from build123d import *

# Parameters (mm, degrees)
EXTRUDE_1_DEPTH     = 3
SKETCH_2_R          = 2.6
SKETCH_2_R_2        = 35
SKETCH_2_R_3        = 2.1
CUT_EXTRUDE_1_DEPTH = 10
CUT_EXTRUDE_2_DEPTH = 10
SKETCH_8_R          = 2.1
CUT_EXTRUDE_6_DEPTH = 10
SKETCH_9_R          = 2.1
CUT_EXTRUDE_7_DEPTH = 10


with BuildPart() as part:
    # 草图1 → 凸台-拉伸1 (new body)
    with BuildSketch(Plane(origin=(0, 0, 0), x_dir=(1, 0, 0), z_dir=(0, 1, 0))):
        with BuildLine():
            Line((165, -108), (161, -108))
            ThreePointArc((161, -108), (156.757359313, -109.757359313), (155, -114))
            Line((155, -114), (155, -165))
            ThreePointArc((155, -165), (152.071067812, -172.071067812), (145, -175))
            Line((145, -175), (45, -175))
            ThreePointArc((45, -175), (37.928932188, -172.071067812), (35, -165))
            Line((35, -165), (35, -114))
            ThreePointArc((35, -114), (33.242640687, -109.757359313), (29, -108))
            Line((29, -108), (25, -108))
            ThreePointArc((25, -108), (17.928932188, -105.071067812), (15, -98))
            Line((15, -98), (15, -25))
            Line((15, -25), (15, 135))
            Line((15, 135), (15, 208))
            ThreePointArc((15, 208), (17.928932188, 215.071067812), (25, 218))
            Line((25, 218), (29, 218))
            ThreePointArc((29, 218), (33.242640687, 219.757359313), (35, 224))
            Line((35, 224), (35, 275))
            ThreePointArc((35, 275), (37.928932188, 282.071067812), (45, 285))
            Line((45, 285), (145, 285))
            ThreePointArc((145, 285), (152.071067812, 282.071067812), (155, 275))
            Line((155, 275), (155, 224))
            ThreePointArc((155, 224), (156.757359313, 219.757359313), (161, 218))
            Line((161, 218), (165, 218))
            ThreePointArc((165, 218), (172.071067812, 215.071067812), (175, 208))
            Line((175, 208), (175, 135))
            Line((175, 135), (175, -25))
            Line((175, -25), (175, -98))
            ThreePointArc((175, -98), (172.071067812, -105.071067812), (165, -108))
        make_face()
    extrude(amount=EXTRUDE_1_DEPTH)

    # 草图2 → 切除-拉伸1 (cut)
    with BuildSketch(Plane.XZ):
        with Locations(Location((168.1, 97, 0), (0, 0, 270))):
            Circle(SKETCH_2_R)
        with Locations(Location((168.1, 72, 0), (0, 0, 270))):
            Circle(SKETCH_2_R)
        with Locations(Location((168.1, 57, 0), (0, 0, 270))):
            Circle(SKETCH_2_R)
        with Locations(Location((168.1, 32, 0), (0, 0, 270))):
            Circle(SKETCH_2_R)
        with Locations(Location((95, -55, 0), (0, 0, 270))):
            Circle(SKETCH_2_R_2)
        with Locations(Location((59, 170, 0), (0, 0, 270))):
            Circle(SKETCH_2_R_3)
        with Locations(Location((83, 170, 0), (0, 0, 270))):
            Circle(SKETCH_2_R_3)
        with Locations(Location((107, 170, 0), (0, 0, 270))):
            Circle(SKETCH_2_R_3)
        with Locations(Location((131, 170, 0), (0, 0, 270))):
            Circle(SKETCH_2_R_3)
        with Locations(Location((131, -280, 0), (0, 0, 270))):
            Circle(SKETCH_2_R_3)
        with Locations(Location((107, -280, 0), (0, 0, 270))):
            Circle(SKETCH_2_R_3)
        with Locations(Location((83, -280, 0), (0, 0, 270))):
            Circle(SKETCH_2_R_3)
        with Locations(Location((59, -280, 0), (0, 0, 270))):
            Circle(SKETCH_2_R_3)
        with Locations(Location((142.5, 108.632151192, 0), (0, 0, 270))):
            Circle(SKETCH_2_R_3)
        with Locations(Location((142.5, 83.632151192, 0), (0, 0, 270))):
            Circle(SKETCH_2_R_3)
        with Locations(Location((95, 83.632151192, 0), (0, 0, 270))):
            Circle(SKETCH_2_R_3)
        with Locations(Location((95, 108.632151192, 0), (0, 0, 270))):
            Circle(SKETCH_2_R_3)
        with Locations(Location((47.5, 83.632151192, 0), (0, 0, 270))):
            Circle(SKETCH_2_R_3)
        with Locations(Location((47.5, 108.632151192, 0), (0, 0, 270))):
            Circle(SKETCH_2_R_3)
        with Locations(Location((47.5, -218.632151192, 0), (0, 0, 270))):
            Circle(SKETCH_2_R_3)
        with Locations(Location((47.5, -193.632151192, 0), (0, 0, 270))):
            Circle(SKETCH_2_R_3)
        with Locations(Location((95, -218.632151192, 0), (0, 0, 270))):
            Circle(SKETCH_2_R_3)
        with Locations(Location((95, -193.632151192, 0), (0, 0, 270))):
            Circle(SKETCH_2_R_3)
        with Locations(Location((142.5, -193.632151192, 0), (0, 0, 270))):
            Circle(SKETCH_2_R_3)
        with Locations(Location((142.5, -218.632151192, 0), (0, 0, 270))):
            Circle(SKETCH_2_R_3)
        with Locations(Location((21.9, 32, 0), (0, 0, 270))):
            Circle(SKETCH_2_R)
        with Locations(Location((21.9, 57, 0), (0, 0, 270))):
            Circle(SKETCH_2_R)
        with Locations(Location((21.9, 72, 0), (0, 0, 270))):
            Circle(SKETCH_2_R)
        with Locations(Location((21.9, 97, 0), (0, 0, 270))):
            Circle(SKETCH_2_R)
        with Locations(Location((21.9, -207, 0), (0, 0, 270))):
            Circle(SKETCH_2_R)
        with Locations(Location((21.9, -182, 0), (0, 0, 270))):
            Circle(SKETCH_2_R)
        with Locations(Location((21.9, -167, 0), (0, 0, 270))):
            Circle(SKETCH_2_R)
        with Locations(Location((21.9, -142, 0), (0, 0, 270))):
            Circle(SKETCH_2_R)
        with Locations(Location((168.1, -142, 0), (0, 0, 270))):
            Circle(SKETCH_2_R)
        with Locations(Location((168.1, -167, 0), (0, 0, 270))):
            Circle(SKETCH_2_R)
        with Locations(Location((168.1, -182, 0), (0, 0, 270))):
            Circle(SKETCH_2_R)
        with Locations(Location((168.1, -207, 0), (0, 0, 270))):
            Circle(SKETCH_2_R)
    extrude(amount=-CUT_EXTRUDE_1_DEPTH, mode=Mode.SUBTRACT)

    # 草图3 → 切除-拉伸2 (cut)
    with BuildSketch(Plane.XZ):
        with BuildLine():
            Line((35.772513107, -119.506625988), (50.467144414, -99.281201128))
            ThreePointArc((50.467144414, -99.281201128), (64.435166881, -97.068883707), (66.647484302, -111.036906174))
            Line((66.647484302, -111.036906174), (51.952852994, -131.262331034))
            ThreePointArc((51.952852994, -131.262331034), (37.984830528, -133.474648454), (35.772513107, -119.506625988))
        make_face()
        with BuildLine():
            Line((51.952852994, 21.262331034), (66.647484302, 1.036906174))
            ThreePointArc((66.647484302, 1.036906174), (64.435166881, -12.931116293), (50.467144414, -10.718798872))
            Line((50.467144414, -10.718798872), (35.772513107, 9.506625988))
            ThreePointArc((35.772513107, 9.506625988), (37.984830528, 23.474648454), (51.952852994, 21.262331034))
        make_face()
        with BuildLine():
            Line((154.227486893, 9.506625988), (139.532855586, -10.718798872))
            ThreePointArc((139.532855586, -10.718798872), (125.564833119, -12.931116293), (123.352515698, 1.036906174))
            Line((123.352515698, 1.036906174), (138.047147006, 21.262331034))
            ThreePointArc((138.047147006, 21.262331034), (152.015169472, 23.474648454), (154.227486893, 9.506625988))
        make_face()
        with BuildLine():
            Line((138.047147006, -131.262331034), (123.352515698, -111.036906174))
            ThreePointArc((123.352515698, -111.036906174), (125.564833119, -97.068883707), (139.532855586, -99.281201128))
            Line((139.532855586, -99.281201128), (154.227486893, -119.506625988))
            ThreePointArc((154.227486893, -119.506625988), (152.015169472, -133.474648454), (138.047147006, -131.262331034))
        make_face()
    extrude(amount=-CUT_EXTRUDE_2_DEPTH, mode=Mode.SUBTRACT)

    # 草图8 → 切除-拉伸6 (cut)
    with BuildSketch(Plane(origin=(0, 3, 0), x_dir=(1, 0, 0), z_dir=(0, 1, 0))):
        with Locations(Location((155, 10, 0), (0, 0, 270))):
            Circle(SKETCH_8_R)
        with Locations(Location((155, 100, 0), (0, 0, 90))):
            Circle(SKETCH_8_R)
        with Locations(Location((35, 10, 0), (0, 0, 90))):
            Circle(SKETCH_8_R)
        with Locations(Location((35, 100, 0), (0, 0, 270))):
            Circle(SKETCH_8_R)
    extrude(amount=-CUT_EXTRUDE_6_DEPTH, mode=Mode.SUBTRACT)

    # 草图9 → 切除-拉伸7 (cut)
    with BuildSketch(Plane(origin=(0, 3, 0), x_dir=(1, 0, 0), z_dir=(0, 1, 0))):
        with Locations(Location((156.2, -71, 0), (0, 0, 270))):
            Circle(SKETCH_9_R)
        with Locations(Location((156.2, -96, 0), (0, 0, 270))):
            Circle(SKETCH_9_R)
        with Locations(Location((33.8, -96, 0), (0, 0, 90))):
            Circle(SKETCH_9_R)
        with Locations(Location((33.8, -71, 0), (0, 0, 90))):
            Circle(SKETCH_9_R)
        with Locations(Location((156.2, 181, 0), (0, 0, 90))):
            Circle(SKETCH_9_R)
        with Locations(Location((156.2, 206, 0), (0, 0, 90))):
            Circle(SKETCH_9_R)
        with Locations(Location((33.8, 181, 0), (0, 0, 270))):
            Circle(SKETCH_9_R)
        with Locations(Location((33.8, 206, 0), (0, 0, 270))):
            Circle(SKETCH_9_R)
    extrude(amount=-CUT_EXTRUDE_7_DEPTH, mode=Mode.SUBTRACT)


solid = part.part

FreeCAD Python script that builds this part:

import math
import FreeCAD as App
import Part
import Sketcher

V = App.Vector
Q = App.Units.Quantity

doc = App.newDocument("Part")
params = doc.addObject("Spreadsheet::Sheet", "Params")
for row, (alias, value) in enumerate([
    ("sketch1_radius", "10 mm"),
    ("sketch1_radius2", "6 mm"),
    ("sketch1_width", "4 mm"),
    ("sketch1_width2", "100 mm"),
    ("sketch1_height", "306 mm"),
    ("pad1_length", "3 mm"),
    ("sketch2_diameter", "70 mm"),
    ("sketch2_diameter2", "5.2 mm"),
    ("sketch2_diameter3", "4.2 mm"),
    ("pocket1_length", "10 mm"),
    ("sketch3_radius", "10 mm"),
    ("sketch3_length", "25 mm"),
    ("pocket2_length", "10 mm"),
    ("sketch4_diameter", "4.2 mm"),
    ("pocket3_length", "10 mm"),
    ("sketch5_diameter", "4.2 mm"),
    ("pocket4_length", "10 mm"),
], start=1):
    params.set(f"A{row}", alias)
    params.set(f"B{row}", "=" + value)
    params.setAlias(f"B{row}", alias)

body = doc.addObject("PartDesign::Body", "Body")

sketch1 = body.newObject("Sketcher::SketchObject", "Sketch")
sketch1.AttachmentSupport = (doc.getObject("XZ_Plane"), [""])
sketch1.MapMode = "FlatFace"
sketch1.addGeometry([
    Part.LineSegment(V(161, 108, 0), V(165, 108, 0)),
    Part.ArcOfCircle(Part.Circle(V(165, 98, 0), V(0, 0, 1), 10), math.radians(0), math.radians(90)),
    Part.LineSegment(V(175, 98, 0), V(175, -208, 0)),
    Part.ArcOfCircle(Part.Circle(V(165, -208, 0), V(0, 0, 1), 10), math.radians(-90), math.radians(0)),
    Part.LineSegment(V(165, -218, 0), V(161, -218, 0)),
    Part.ArcOfCircle(Part.Circle(V(161, -224, 0), V(0, 0, 1), 6), math.radians(90), math.radians(180)),
    Part.LineSegment(V(155, -224, 0), V(155, -275, 0)),
    Part.ArcOfCircle(Part.Circle(V(145, -275, 0), V(0, 0, 1), 10), math.radians(-90), math.radians(0)),
    Part.LineSegment(V(145, -285, 0), V(45, -285, 0)),
    Part.ArcOfCircle(Part.Circle(V(45, -275, 0), V(0, 0, 1), 10), math.radians(180), math.radians(270)),
    Part.LineSegment(V(35, -275, 0), V(35, -224, 0)),
    Part.ArcOfCircle(Part.Circle(V(29, -224, 0), V(0, 0, 1), 6), math.radians(0), math.radians(90)),
    Part.LineSegment(V(29, -218, 0), V(25, -218, 0)),
    Part.ArcOfCircle(Part.Circle(V(25, -208, 0), V(0, 0, 1), 10), math.radians(180), math.radians(270)),
    Part.LineSegment(V(15, -208, 0), V(15, 98, 0)),
    Part.ArcOfCircle(Part.Circle(V(25, 98, 0), V(0, 0, 1), 10), math.radians(90), math.radians(180)),
    Part.LineSegment(V(25, 108, 0), V(29, 108, 0)),
    Part.ArcOfCircle(Part.Circle(V(29, 114, 0), V(0, 0, 1), 6), math.radians(-90), math.radians(0)),
    Part.LineSegment(V(35, 114, 0), V(35, 165, 0)),
    Part.ArcOfCircle(Part.Circle(V(45, 165, 0), V(0, 0, 1), 10), math.radians(90), math.radians(180)),
    Part.LineSegment(V(45, 175, 0), V(145, 175, 0)),
    Part.ArcOfCircle(Part.Circle(V(145, 165, 0), V(0, 0, 1), 10), math.radians(0), math.radians(90)),
    Part.LineSegment(V(155, 165, 0), V(155, 114, 0)),
    Part.ArcOfCircle(Part.Circle(V(161, 114, 0), V(0, 0, 1), 6), math.radians(180), math.radians(270)),
], False)
sketch1.addConstraint([
    Sketcher.Constraint("Tangent", 0, 2, 1, 2),
    Sketcher.Constraint("Tangent", 1, 1, 2, 1),
    Sketcher.Constraint("Tangent", 2, 2, 3, 2),
    Sketcher.Constraint("Tangent", 3, 1, 4, 1),
    Sketcher.Constraint("Tangent", 4, 2, 5, 1),
    Sketcher.Constraint("Tangent", 5, 2, 6, 1),
    Sketcher.Constraint("Tangent", 6, 2, 7, 2),
    Sketcher.Constraint("Tangent", 7, 1, 8, 1),
    Sketcher.Constraint("Tangent", 8, 2, 9, 2),
    Sketcher.Constraint("Tangent", 9, 1, 10, 1),
    Sketcher.Constraint("Tangent", 10, 2, 11, 1),
    Sketcher.Constraint("Tangent", 11, 2, 12, 1),
    Sketcher.Constraint("Tangent", 12, 2, 13, 2),
    Sketcher.Constraint("Tangent", 13, 1, 14, 1),
    Sketcher.Constraint("Tangent", 14, 2, 15, 2),
    Sketcher.Constraint("Tangent", 15, 1, 16, 1),
    Sketcher.Constraint("Tangent", 16, 2, 17, 1),
    Sketcher.Constraint("Tangent", 17, 2, 18, 1),
    Sketcher.Constraint("Tangent", 18, 2, 19, 2),
    Sketcher.Constraint("Tangent", 19, 1, 20, 1),
    Sketcher.Constraint("Tangent", 20, 2, 21, 2),
    Sketcher.Constraint("Tangent", 21, 1, 22, 1),
    Sketcher.Constraint("Tangent", 22, 2, 23, 1),
    Sketcher.Constraint("Tangent", 23, 2, 0, 1),
    Sketcher.Constraint("Horizontal", 0),
    Sketcher.Constraint("Vertical", 2),
    Sketcher.Constraint("Horizontal", 4),
    Sketcher.Constraint("Vertical", 6),
    Sketcher.Constraint("Horizontal", 8),
    Sketcher.Constraint("Vertical", 10),
    Sketcher.Constraint("Horizontal", 12),
    Sketcher.Constraint("Vertical", 14),
    Sketcher.Constraint("Horizontal", 16),
    Sketcher.Constraint("Vertical", 18),
    Sketcher.Constraint("Horizontal", 20),
    Sketcher.Constraint("Vertical", 22),
    Sketcher.Constraint("Equal", 1, 3),
    Sketcher.Constraint("Equal", 3, 7),
    Sketcher.Constraint("Equal", 7, 9),
    Sketcher.Constraint("Equal", 5, 11),
    Sketcher.Constraint("Equal", 9, 13),
    Sketcher.Constraint("Equal", 13, 15),
    Sketcher.Constraint("Equal", 11, 17),
    Sketcher.Constraint("Equal", 15, 19),
    Sketcher.Constraint("Equal", 19, 21),
    Sketcher.Constraint("Equal", 17, 23),
    Sketcher.Constraint("Horizontal", 5, 3, 11, 3),
    Sketcher.Constraint("Horizontal", 1, 3, 15, 3),
    Sketcher.Constraint("Vertical", 11, 3, 17, 3),
    Sketcher.Constraint("Vertical", 7, 3, 21, 3),
    Sketcher.Constraint("Equal", 4, 12),
    Sketcher.Constraint("Equal", 10, 18),
    Sketcher.Constraint("Radius", 1, Q("10 mm")),
    Sketcher.Constraint("Radius", 5, Q("6 mm")),
    Sketcher.Constraint("DistanceX", 0, 1, 0, 2, Q("4 mm")),
    Sketcher.Constraint("DistanceX", 8, 2, 8, 1, Q("100 mm")),
    Sketcher.Constraint("DistanceY", 2, 2, 2, 1, Q("306 mm")),
    Sketcher.Constraint("DistanceY", 6, 2, 6, 1, Q("51 mm")),
    Sketcher.Constraint("DistanceX", -1, 1, 1, 3, Q("165 mm")),
    Sketcher.Constraint("DistanceY", -1, 1, 1, 3, Q("98 mm")),
])
sketch1.setExpression("Constraints[52]", "Params.sketch1_radius")
sketch1.setExpression("Constraints[53]", "Params.sketch1_radius2")
sketch1.setExpression("Constraints[54]", "Params.sketch1_width")
sketch1.setExpression("Constraints[55]", "Params.sketch1_width2")
sketch1.setExpression("Constraints[56]", "Params.sketch1_height")
pad1 = body.newObject("PartDesign::Pad", "Pad")
pad1.Profile = sketch1
pad1.setExpression("Length", "Params.pad1_length")
pad1.Reversed = True

sketch2 = body.newObject("Sketcher::SketchObject", "Sketch001")
sketch2.AttachmentSupport = (doc.getObject("XZ_Plane"), [""])
sketch2.MapMode = "FlatFace"
sketch2.addGeometry([
    Part.Circle(V(168.1, 97, 0), V(0, 0, 1), 2.6),
    Part.Circle(V(168.1, 72, 0), V(0, 0, 1), 2.6),
    Part.Circle(V(168.1, 57, 0), V(0, 0, 1), 2.6),
    Part.Circle(V(168.1, 32, 0), V(0, 0, 1), 2.6),
    Part.Circle(V(95, -55, 0), V(0, 0, 1), 35),
    Part.Circle(V(59, 170, 0), V(0, 0, 1), 2.1),
    Part.Circle(V(83, 170, 0), V(0, 0, 1), 2.1),
    Part.Circle(V(107, 170, 0), V(0, 0, 1), 2.1),
    Part.Circle(V(131, 170, 0), V(0, 0, 1), 2.1),
    Part.Circle(V(131, -280, 0), V(0, 0, 1), 2.1),
    Part.Circle(V(107, -280, 0), V(0, 0, 1), 2.1),
    Part.Circle(V(83, -280, 0), V(0, 0, 1), 2.1),
    Part.Circle(V(59, -280, 0), V(0, 0, 1), 2.1),
    Part.Circle(V(142.5, 108.632151, 0), V(0, 0, 1), 2.1),
    Part.Circle(V(142.5, 83.632151, 0), V(0, 0, 1), 2.1),
    Part.Circle(V(95, 83.632151, 0), V(0, 0, 1), 2.1),
    Part.Circle(V(95, 108.632151, 0), V(0, 0, 1), 2.1),
    Part.Circle(V(47.5, 83.632151, 0), V(0, 0, 1), 2.1),
    Part.Circle(V(47.5, 108.632151, 0), V(0, 0, 1), 2.1),
    Part.Circle(V(47.5, -218.632151, 0), V(0, 0, 1), 2.1),
    Part.Circle(V(47.5, -193.632151, 0), V(0, 0, 1), 2.1),
    Part.Circle(V(95, -218.632151, 0), V(0, 0, 1), 2.1),
    Part.Circle(V(95, -193.632151, 0), V(0, 0, 1), 2.1),
    Part.Circle(V(142.5, -193.632151, 0), V(0, 0, 1), 2.1),
    Part.Circle(V(142.5, -218.632151, 0), V(0, 0, 1), 2.1),
    Part.Circle(V(21.9, 32, 0), V(0, 0, 1), 2.6),
    Part.Circle(V(21.9, 57, 0), V(0, 0, 1), 2.6),
    Part.Circle(V(21.9, 72, 0), V(0, 0, 1), 2.6),
    Part.Circle(V(21.9, 97, 0), V(0, 0, 1), 2.6),
    Part.Circle(V(21.9, -207, 0), V(0, 0, 1), 2.6),
    Part.Circle(V(21.9, -182, 0), V(0, 0, 1), 2.6),
    Part.Circle(V(21.9, -167, 0), V(0, 0, 1), 2.6),
    Part.Circle(V(21.9, -142, 0), V(0, 0, 1), 2.6),
    Part.Circle(V(168.1, -142, 0), V(0, 0, 1), 2.6),
    Part.Circle(V(168.1, -167, 0), V(0, 0, 1), 2.6),
    Part.Circle(V(168.1, -182, 0), V(0, 0, 1), 2.6),
    Part.Circle(V(168.1, -207, 0), V(0, 0, 1), 2.6),
], False)
sketch2.addConstraint([
    Sketcher.Constraint("Equal", 0, 1),
    Sketcher.Constraint("Equal", 1, 2),
    Sketcher.Constraint("Equal", 2, 3),
    Sketcher.Constraint("Equal", 5, 6),
    Sketcher.Constraint("Equal", 6, 7),
    Sketcher.Constraint("Equal", 7, 8),
    Sketcher.Constraint("Equal", 8, 9),
    Sketcher.Constraint("Equal", 9, 10),
    Sketcher.Constraint("Equal", 10, 11),
    Sketcher.Constraint("Equal", 11, 12),
    Sketcher.Constraint("Equal", 12, 13),
    Sketcher.Constraint("Equal", 13, 14),
    Sketcher.Constraint("Equal", 14, 15),
    Sketcher.Constraint("Equal", 15, 16),
    Sketcher.Constraint("Equal", 16, 17),
    Sketcher.Constraint("Equal", 17, 18),
    Sketcher.Constraint("Equal", 18, 19),
    Sketcher.Constraint("Equal", 19, 20),
    Sketcher.Constraint("Equal", 20, 21),
    Sketcher.Constraint("Equal", 21, 22),
    Sketcher.Constraint("Equal", 22, 23),
    Sketcher.Constraint("Equal", 23, 24),
    Sketcher.Constraint("Equal", 3, 25),
    Sketcher.Constraint("Equal", 25, 26),
    Sketcher.Constraint("Equal", 26, 27),
    Sketcher.Constraint("Equal", 27, 28),
    Sketcher.Constraint("Equal", 28, 29),
    Sketcher.Constraint("Equal", 29, 30),
    Sketcher.Constraint("Equal", 30, 31),
    Sketcher.Constraint("Equal", 31, 32),
    Sketcher.Constraint("Equal", 32, 33),
    Sketcher.Constraint("Equal", 33, 34),
    Sketcher.Constraint("Equal", 34, 35),
    Sketcher.Constraint("Equal", 35, 36),
    Sketcher.Constraint("Horizontal", 5, 3, 6, 3),
    Sketcher.Constraint("Horizontal", 6, 3, 7, 3),
    Sketcher.Constraint("Horizontal", 7, 3, 8, 3),
    Sketcher.Constraint("Horizontal", 9, 3, 10, 3),
    Sketcher.Constraint("Horizontal", 10, 3, 11, 3),
    Sketcher.Constraint("Horizontal", 11, 3, 12, 3),
    Sketcher.Constraint("Horizontal", 14, 3, 15, 3),
    Sketcher.Constraint("Horizontal", 13, 3, 16, 3),
    Sketcher.Constraint("Horizontal", 15, 3, 17, 3),
    Sketcher.Constraint("Horizontal", 16, 3, 18, 3),
    Sketcher.Constraint("Horizontal", 19, 3, 21, 3),
    Sketcher.Constraint("Horizontal", 20, 3, 22, 3),
    Sketcher.Constraint("Horizontal", 22, 3, 23, 3),
    Sketcher.Constraint("Horizontal", 21, 3, 24, 3),
    Sketcher.Constraint("Horizontal", 3, 3, 25, 3),
    Sketcher.Constraint("Horizontal", 2, 3, 26, 3),
    Sketcher.Constraint("Horizontal", 1, 3, 27, 3),
    Sketcher.Constraint("Horizontal", 0, 3, 28, 3),
    Sketcher.Constraint("Horizontal", 32, 3, 33, 3),
    Sketcher.Constraint("Horizontal", 31, 3, 34, 3),
    Sketcher.Constraint("Horizontal", 30, 3, 35, 3),
    Sketcher.Constraint("Horizontal", 29, 3, 36, 3),
    Sketcher.Constraint("Vertical", 0, 3, 1, 3),
    Sketcher.Constraint("Vertical", 1, 3, 2, 3),
    Sketcher.Constraint("Vertical", 2, 3, 3, 3),
    Sketcher.Constraint("Vertical", 8, 3, 9, 3),
    Sketcher.Constraint("Vertical", 7, 3, 10, 3),
    Sketcher.Constraint("Vertical", 6, 3, 11, 3),
    Sketcher.Constraint("Vertical", 5, 3, 12, 3),
    Sketcher.Constraint("Vertical", 13, 3, 14, 3),
    Sketcher.Constraint("Vertical", 4, 3, 15, 3),
    Sketcher.Constraint("Vertical", 15, 3, 16, 3),
    Sketcher.Constraint("Vertical", 17, 3, 18, 3),
    Sketcher.Constraint("Vertical", 18, 3, 19, 3),
    Sketcher.Constraint("Vertical", 19, 3, 20, 3),
    Sketcher.Constraint("Vertical", 16, 3, 21, 3),
    Sketcher.Constraint("Vertical", 21, 3, 22, 3),
    Sketcher.Constraint("Vertical", 14, 3, 23, 3),
    Sketcher.Constraint("Vertical", 23, 3, 24, 3),
    Sketcher.Constraint("Vertical", 25, 3, 26, 3),
    Sketcher.Constraint("Vertical", 26, 3, 27, 3),
    Sketcher.Constraint("Vertical", 27, 3, 28, 3),
    Sketcher.Constraint("Vertical", 28, 3, 29, 3),
    Sketcher.Constraint("Vertical", 29, 3, 30, 3),
    Sketcher.Constraint("Vertical", 30, 3, 31, 3),
    Sketcher.Constraint("Vertical", 31, 3, 32, 3),
    Sketcher.Constraint("Vertical", 3, 3, 33, 3),
    Sketcher.Constraint("Vertical", 33, 3, 34, 3),
    Sketcher.Constraint("Vertical", 34, 3, 35, 3),
    Sketcher.Constraint("Vertical", 35, 3, 36, 3),
    Sketcher.Constraint("Diameter", 4, Q("70 mm")),
    Sketcher.Constraint("Diameter", 0, Q("5.2 mm")),
    Sketcher.Constraint("Diameter", 5, Q("4.2 mm")),
    Sketcher.Constraint("DistanceY", -1, 1, 0, 3, Q("97 mm")),
    Sketcher.Constraint("DistanceY", -1, 1, 1, 3, Q("72 mm")),
    Sketcher.Constraint("DistanceY", -1, 1, 2, 3, Q("57 mm")),
    Sketcher.Constraint("DistanceY", -1, 1, 3, 3, Q("32 mm")),
    Sketcher.Constraint("DistanceX", -1, 1, 4, 3, Q("95 mm")),
    Sketcher.Constraint("DistanceY", 4, 3, -1, 1, Q("55 mm")),
    Sketcher.Constraint("DistanceX", -1, 1, 5, 3, Q("59 mm")),
    Sketcher.Constraint("DistanceY", -1, 1, 5, 3, Q("170 mm")),
    Sketcher.Constraint("DistanceX", -1, 1, 6, 3, Q("83 mm")),
    Sketcher.Constraint("DistanceX", -1, 1, 7, 3, Q("107 mm")),
    Sketcher.Constraint("DistanceX", -1, 1, 8, 3, Q("131 mm")),
    Sketcher.Constraint("DistanceY", 9, 3, -1, 1, Q("280 mm")),
    Sketcher.Constraint("DistanceY", 29, 3, -1, 1, Q("207 mm")),
    Sketcher.Constraint("DistanceY", 30, 3, -1, 1, Q("182 mm")),
    Sketcher.Constraint("DistanceY", 31, 3, -1, 1, Q("167 mm")),
    Sketcher.Constraint("DistanceY", 32, 3, -1, 1, Q("142 mm")),
    Sketcher.Constraint("DistanceY", 14, 3, 13, 3, Q("25 mm")),
    Sketcher.Constraint("DistanceX", 17, 3, 14, 3, Q("95 mm")),
    Sketcher.Constraint("DistanceY", 19, 3, 20, 3, Q("25 mm")),
    Sketcher.Constraint("DistanceX", -1, 1, 0, 3, Q("168.1 mm")),
    Sketcher.Constraint("DistanceX", -1, 1, 13, 3, Q("142.5 mm")),
    Sketcher.Constraint("DistanceX", -1, 1, 25, 3, Q("21.9 mm")),
    Sketcher.Constraint("DistanceY", -1, 1, 13, 3, Q("108.632151 mm")),
    Sketcher.Constraint("DistanceY", 19, 3, -1, 1, Q("218.632151 mm")),
])
sketch2.setExpression("Constraints[84]", "Params.sketch2_diameter")
sketch2.setExpression("Constraints[85]", "Params.sketch2_diameter2")
sketch2.setExpression("Constraints[86]", "Params.sketch2_diameter3")
pocket1 = body.newObject("PartDesign::Pocket", "Pocket")
pocket1.Profile = sketch2
pocket1.setExpression("Length", "Params.pocket1_length")

sketch3 = body.newObject("Sketcher::SketchObject", "Sketch002")
sketch3.AttachmentSupport = (doc.getObject("XZ_Plane"), [""])
sketch3.MapMode = "FlatFace"
sketch3.addGeometry([
    Part.LineSegment(V(50.467144, -99.281201, 0), V(35.772513, -119.506626, 0)),
    Part.ArcOfCircle(Part.Circle(V(43.862683, -125.384479, 0), V(0, 0, 1), 10), math.radians(144), math.radians(324)),
    Part.LineSegment(V(51.952853, -131.262331, 0), V(66.647484, -111.036906, 0)),
    Part.ArcOfCircle(Part.Circle(V(58.557314, -105.159054, 0), V(0, 0, 1), 10), math.radians(-36), math.radians(144)),
    Part.LineSegment(V(66.647484, 1.036906, 0), V(51.952853, 21.262331, 0)),
    Part.ArcOfCircle(Part.Circle(V(43.862683, 15.384479, 0), V(0, 0, 1), 10), math.radians(36), math.radians(216)),
    Part.LineSegment(V(35.772513, 9.506626, 0), V(50.467144, -10.718799, 0)),
    Part.ArcOfCircle(Part.Circle(V(58.557314, -4.840946, 0), V(0, 0, 1), 10), math.radians(-144), math.radians(36)),
    Part.LineSegment(V(139.532856, -10.718799, 0), V(154.227487, 9.506626, 0)),
    Part.ArcOfCircle(Part.Circle(V(146.137317, 15.384479, 0), V(0, 0, 1), 10), math.radians(-36), math.radians(144)),
    Part.LineSegment(V(138.047147, 21.262331, 0), V(123.352516, 1.036906, 0)),
    Part.ArcOfCircle(Part.Circle(V(131.442686, -4.840946, 0), V(0, 0, 1), 10), math.radians(144), math.radians(324)),
    Part.LineSegment(V(123.352516, -111.036906, 0), V(138.047147, -131.262331, 0)),
    Part.ArcOfCircle(Part.Circle(V(146.137317, -125.384479, 0), V(0, 0, 1), 10), math.radians(-144), math.radians(36)),
    Part.LineSegment(V(154.227487, -119.506626, 0), V(139.532856, -99.281201, 0)),
    Part.ArcOfCircle(Part.Circle(V(131.442686, -105.159054, 0), V(0, 0, 1), 10), math.radians(36), math.radians(216)),
], False)
sketch3.addConstraint([
    Sketcher.Constraint("Tangent", 0, 2, 1, 1),
    Sketcher.Constraint("Tangent", 1, 2, 2, 1),
    Sketcher.Constraint("Tangent", 2, 2, 3, 1),
    Sketcher.Constraint("Tangent", 3, 2, 0, 1),
    Sketcher.Constraint("Tangent", 4, 2, 5, 1),
    Sketcher.Constraint("Tangent", 5, 2, 6, 1),
    Sketcher.Constraint("Tangent", 6, 2, 7, 1),
    Sketcher.Constraint("Tangent", 7, 2, 4, 1),
    Sketcher.Constraint("Tangent", 8, 2, 9, 1),
    Sketcher.Constraint("Tangent", 9, 2, 10, 1),
    Sketcher.Constraint("Tangent", 10, 2, 11, 1),
    Sketcher.Constraint("Tangent", 11, 2, 8, 1),
    Sketcher.Constraint("Tangent", 12, 2, 13, 1),
    Sketcher.Constraint("Tangent", 13, 2, 14, 1),
    Sketcher.Constraint("Tangent", 14, 2, 15, 1),
    Sketcher.Constraint("Tangent", 15, 2, 12, 1),
    Sketcher.Constraint("Equal", 1, 3),
    Sketcher.Constraint("Equal", 3, 5),
    Sketcher.Constraint("Equal", 5, 7),
    Sketcher.Constraint("Equal", 7, 9),
    Sketcher.Constraint("Equal", 9, 11),
    Sketcher.Constraint("Equal", 11, 13),
    Sketcher.Constraint("Equal", 13, 15),
    Sketcher.Constraint("Parallel", 2, 8),
    Sketcher.Constraint("Parallel", 6, 12),
    Sketcher.Constraint("Horizontal", 5, 3, 9, 3),
    Sketcher.Constraint("Horizontal", 7, 3, 11, 3),
    Sketcher.Constraint("Horizontal", 1, 3, 13, 3),
    Sketcher.Constraint("Horizontal", 3, 3, 15, 3),
    Sketcher.Constraint("Horizontal", 5, 2, 8, 2),
    Sketcher.Constraint("Vertical", 1, 3, 5, 3),
    Sketcher.Constraint("Vertical", 3, 3, 7, 3),
    Sketcher.Constraint("Vertical", 9, 3, 13, 3),
    Sketcher.Constraint("Radius", 1, Q("10 mm")),
    Sketcher.Constraint("Angle", 0, Q("-126 deg")),
    Sketcher.Constraint("Distance", 0, Q("25 mm")),
    Sketcher.Constraint("DistanceY", 3, 2, -1, 1, Q("99.281201 mm")),
    Sketcher.Constraint("DistanceY", 6, 2, -1, 1, Q("10.718799 mm")),
    Sketcher.Constraint("DistanceX", 2, 2, 15, 3, Q("64.795201 mm")),
    Sketcher.Constraint("DistanceX", -1, 1, 1, 3, Q("43.862683 mm")),
])
sketch3.setExpression("Constraints[33]", "Params.sketch3_radius")
sketch3.setExpression("Constraints[35]", "Params.sketch3_length")
pocket2 = body.newObject("PartDesign::Pocket", "Pocket001")
pocket2.Profile = sketch3
pocket2.setExpression("Length", "Params.pocket2_length")

sketch4 = body.newObject("Sketcher::SketchObject", "Sketch003")
sketch4.AttachmentSupport = (doc.getObject("XZ_Plane"), [""])
sketch4.MapMode = "FlatFace"
sketch4.AttachmentOffset = App.Placement(V(0, 0, -3), App.Rotation())
sketch4.addGeometry([
    Part.Circle(V(155, -10, 0), V(0, 0, 1), 2.1),
    Part.Circle(V(155, -100, 0), V(0, 0, 1), 2.1),
    Part.Circle(V(35, -10, 0), V(0, 0, 1), 2.1),
    Part.Circle(V(35, -100, 0), V(0, 0, 1), 2.1),
], False)
sketch4.addConstraint([
    Sketcher.Constraint("Equal", 0, 1),
    Sketcher.Constraint("Equal", 1, 2),
    Sketcher.Constraint("Equal", 2, 3),
    Sketcher.Constraint("Horizontal", 0, 3, 2, 3),
    Sketcher.Constraint("Horizontal", 1, 3, 3, 3),
    Sketcher.Constraint("Vertical", 0, 3, 1, 3),
    Sketcher.Constraint("Vertical", 2, 3, 3, 3),
    Sketcher.Constraint("Diameter", 0, Q("4.2 mm")),
    Sketcher.Constraint("DistanceX", -1, 1, 0, 3, Q("155 mm")),
    Sketcher.Constraint("DistanceY", 0, 3, -1, 1, Q("10 mm")),
    Sketcher.Constraint("DistanceY", 1, 3, -1, 1, Q("100 mm")),
    Sketcher.Constraint("DistanceX", -1, 1, 2, 3, Q("35 mm")),
])
sketch4.setExpression("Constraints[7]", "Params.sketch4_diameter")
pocket3 = body.newObject("PartDesign::Pocket", "Pocket002")
pocket3.Profile = sketch4
pocket3.setExpression("Length", "Params.pocket3_length")
pocket3.Reversed = True

sketch5 = body.newObject("Sketcher::SketchObject", "Sketch004")
sketch5.AttachmentSupport = (doc.getObject("XZ_Plane"), [""])
sketch5.MapMode = "FlatFace"
sketch5.AttachmentOffset = App.Placement(V(0, 0, -3), App.Rotation())
sketch5.addGeometry([
    Part.Circle(V(156.2, 71, 0), V(0, 0, 1), 2.1),
    Part.Circle(V(156.2, 96, 0), V(0, 0, 1), 2.1),
    Part.Circle(V(33.8, 96, 0), V(0, 0, 1), 2.1),
    Part.Circle(V(33.8, 71, 0), V(0, 0, 1), 2.1),
    Part.Circle(V(156.2, -181, 0), V(0, 0, 1), 2.1),
    Part.Circle(V(156.2, -206, 0), V(0, 0, 1), 2.1),
    Part.Circle(V(33.8, -181, 0), V(0, 0, 1), 2.1),
    Part.Circle(V(33.8, -206, 0), V(0, 0, 1), 2.1),
], False)
sketch5.addConstraint([
    Sketcher.Constraint("Equal", 0, 1),
    Sketcher.Constraint("Equal", 1, 2),
    Sketcher.Constraint("Equal", 2, 3),
    Sketcher.Constraint("Equal", 3, 4),
    Sketcher.Constraint("Equal", 4, 5),
    Sketcher.Constraint("Equal", 5, 6),
    Sketcher.Constraint("Equal", 6, 7),
    Sketcher.Constraint("Horizontal", 1, 3, 2, 3),
    Sketcher.Constraint("Horizontal", 0, 3, 3, 3),
    Sketcher.Constraint("Horizontal", 4, 3, 6, 3),
    Sketcher.Constraint("Horizontal", 5, 3, 7, 3),
    Sketcher.Constraint("Vertical", 0, 3, 1, 3),
    Sketcher.Constraint("Vertical", 2, 3, 3, 3),
    Sketcher.Constraint("Vertical", 1, 3, 4, 3),
    Sketcher.Constraint("Vertical", 4, 3, 5, 3),
    Sketcher.Constraint("Vertical", 3, 3, 6, 3),
    Sketcher.Constraint("Vertical", 6, 3, 7, 3),
    Sketcher.Constraint("Diameter", 0, Q("4.2 mm")),
    Sketcher.Constraint("DistanceY", -1, 1, 0, 3, Q("71 mm")),
    Sketcher.Constraint("DistanceY", -1, 1, 1, 3, Q("96 mm")),
    Sketcher.Constraint("DistanceY", 4, 3, -1, 1, Q("181 mm")),
    Sketcher.Constraint("DistanceY", 5, 3, -1, 1, Q("206 mm")),
    Sketcher.Constraint("DistanceX", -1, 1, 0, 3, Q("156.2 mm")),
    Sketcher.Constraint("DistanceX", -1, 1, 2, 3, Q("33.8 mm")),
])
sketch5.setExpression("Constraints[17]", "Params.sketch5_diameter")
pocket4 = body.newObject("PartDesign::Pocket", "Pocket003")
pocket4.Profile = sketch5
pocket4.setExpression("Length", "Params.pocket4_length")
pocket4.Reversed = True

doc.recompute()
